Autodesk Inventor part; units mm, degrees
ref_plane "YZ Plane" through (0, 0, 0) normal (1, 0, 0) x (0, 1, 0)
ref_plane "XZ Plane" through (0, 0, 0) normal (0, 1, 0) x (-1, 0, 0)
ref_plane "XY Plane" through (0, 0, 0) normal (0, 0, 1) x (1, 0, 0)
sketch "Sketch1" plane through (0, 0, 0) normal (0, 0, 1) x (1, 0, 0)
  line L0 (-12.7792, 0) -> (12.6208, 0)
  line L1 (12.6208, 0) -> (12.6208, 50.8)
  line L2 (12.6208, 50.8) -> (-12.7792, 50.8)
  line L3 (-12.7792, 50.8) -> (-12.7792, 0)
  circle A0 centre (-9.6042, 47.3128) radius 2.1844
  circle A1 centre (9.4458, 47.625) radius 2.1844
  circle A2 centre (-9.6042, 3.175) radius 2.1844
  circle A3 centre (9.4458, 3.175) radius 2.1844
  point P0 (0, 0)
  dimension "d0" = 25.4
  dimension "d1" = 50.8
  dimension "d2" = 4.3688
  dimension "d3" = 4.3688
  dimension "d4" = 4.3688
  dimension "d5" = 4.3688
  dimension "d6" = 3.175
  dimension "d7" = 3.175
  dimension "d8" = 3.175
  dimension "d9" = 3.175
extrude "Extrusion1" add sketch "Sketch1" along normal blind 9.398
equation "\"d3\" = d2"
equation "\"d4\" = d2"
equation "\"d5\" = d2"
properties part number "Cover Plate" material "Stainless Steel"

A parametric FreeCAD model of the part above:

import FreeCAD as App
import Part
import Sketcher
from FreeCAD import Vector
Q = App.Units.Quantity

doc = App.newDocument("Part")
body = doc.addObject("PartDesign::Body", "Body")

# Sketch on XY plane
sketch1 = body.newObject("Sketcher::SketchObject", "Sketch")
sketch1.AttachmentSupport = (doc.getObject("XY_Plane"), [""])
sketch1.MapMode = "FlatFace"
sketch1.addGeometry(Part.LineSegment(Vector(-12.7792, 50.8, 0), Vector(-12.7792, 0, 0)), False)
sketch1.addGeometry(Part.LineSegment(Vector(-12.7792, 0, 0), Vector(12.6208, 0, 0)), False)
sketch1.addGeometry(Part.LineSegment(Vector(12.6208, 0, 0), Vector(12.6208, 50.8, 0)), False)
sketch1.addGeometry(Part.LineSegment(Vector(12.6208, 50.8, 0), Vector(-12.7792, 50.8, 0)), False)
sketch1.addGeometry(Part.Circle(Vector(-9.6042, 3.175, 0), Vector(0, 0, 1), 2.1844), False)
sketch1.addGeometry(Part.Circle(Vector(9.4458, 3.175, 0), Vector(0, 0, 1), 2.1844), False)
sketch1.addGeometry(Part.Circle(Vector(-9.6042, 47.3128, 0), Vector(0, 0, 1), 2.1844), False)
sketch1.addGeometry(Part.Circle(Vector(9.4458, 47.625, 0), Vector(0, 0, 1), 2.1844), False)
sketch1.addConstraint(Sketcher.Constraint("Coincident", 0, 2, 1, 1))
sketch1.addConstraint(Sketcher.Constraint("Coincident", 1, 2, 2, 1))
sketch1.addConstraint(Sketcher.Constraint("Coincident", 2, 2, 3, 1))
sketch1.addConstraint(Sketcher.Constraint("Coincident", 3, 2, 0, 1))
sketch1.addConstraint(Sketcher.Constraint("Vertical", 0))
sketch1.addConstraint(Sketcher.Constraint("Horizontal", 1))
sketch1.addConstraint(Sketcher.Constraint("Vertical", 2))
sketch1.addConstraint(Sketcher.Constraint("Horizontal", 3))
sketch1.addConstraint(Sketcher.Constraint("Equal", 4, 5))
sketch1.addConstraint(Sketcher.Constraint("Equal", 5, 6))
sketch1.addConstraint(Sketcher.Constraint("Equal", 6, 7))
sketch1.addConstraint(Sketcher.Constraint("PointOnObject", 0, 2, -1))
sketch1.addConstraint(Sketcher.Constraint("Horizontal", 4, 3, 5, 3))
sketch1.addConstraint(Sketcher.Constraint("Vertical", 4, 3, 6, 3))
sketch1.addConstraint(Sketcher.Constraint("Vertical", 5, 3, 7, 3))
sketch1.addConstraint(Sketcher.Constraint("DistanceX", 1, 1, 1, 2, Q("1 in")))
sketch1.addConstraint(Sketcher.Constraint("DistanceY", 0, 2, 0, 1, Q("2 in")))
sketch1.addConstraint(Sketcher.Constraint("Diameter", 4, Q("0.172 in")))
sketch1.addConstraint(Sketcher.Constraint("DistanceY", -1, 1, 4, 3, Q("0.125 in")))
sketch1.addConstraint(Sketcher.Constraint("DistanceX", 0, 2, 4, 3, Q("0.125 in")))
sketch1.addConstraint(Sketcher.Constraint("DistanceX", 5, 3, 1, 2, Q("0.125 in")))
sketch1.addConstraint(Sketcher.Constraint("DistanceY", 7, 3, 2, 2, Q("0.125 in")))
sketch1.addConstraint(Sketcher.Constraint("DistanceY", -1, 1, 6, 3, Q("1.8627 in")))
sketch1.addConstraint(Sketcher.Constraint("DistanceX", 4, 3, -1, 1, Q("9.6042 mm")))
pad1 = body.newObject("PartDesign::Pad", "Pad")
pad1.Profile = sketch1
pad1.Length = Q("0.37 in")

doc.recompute()
